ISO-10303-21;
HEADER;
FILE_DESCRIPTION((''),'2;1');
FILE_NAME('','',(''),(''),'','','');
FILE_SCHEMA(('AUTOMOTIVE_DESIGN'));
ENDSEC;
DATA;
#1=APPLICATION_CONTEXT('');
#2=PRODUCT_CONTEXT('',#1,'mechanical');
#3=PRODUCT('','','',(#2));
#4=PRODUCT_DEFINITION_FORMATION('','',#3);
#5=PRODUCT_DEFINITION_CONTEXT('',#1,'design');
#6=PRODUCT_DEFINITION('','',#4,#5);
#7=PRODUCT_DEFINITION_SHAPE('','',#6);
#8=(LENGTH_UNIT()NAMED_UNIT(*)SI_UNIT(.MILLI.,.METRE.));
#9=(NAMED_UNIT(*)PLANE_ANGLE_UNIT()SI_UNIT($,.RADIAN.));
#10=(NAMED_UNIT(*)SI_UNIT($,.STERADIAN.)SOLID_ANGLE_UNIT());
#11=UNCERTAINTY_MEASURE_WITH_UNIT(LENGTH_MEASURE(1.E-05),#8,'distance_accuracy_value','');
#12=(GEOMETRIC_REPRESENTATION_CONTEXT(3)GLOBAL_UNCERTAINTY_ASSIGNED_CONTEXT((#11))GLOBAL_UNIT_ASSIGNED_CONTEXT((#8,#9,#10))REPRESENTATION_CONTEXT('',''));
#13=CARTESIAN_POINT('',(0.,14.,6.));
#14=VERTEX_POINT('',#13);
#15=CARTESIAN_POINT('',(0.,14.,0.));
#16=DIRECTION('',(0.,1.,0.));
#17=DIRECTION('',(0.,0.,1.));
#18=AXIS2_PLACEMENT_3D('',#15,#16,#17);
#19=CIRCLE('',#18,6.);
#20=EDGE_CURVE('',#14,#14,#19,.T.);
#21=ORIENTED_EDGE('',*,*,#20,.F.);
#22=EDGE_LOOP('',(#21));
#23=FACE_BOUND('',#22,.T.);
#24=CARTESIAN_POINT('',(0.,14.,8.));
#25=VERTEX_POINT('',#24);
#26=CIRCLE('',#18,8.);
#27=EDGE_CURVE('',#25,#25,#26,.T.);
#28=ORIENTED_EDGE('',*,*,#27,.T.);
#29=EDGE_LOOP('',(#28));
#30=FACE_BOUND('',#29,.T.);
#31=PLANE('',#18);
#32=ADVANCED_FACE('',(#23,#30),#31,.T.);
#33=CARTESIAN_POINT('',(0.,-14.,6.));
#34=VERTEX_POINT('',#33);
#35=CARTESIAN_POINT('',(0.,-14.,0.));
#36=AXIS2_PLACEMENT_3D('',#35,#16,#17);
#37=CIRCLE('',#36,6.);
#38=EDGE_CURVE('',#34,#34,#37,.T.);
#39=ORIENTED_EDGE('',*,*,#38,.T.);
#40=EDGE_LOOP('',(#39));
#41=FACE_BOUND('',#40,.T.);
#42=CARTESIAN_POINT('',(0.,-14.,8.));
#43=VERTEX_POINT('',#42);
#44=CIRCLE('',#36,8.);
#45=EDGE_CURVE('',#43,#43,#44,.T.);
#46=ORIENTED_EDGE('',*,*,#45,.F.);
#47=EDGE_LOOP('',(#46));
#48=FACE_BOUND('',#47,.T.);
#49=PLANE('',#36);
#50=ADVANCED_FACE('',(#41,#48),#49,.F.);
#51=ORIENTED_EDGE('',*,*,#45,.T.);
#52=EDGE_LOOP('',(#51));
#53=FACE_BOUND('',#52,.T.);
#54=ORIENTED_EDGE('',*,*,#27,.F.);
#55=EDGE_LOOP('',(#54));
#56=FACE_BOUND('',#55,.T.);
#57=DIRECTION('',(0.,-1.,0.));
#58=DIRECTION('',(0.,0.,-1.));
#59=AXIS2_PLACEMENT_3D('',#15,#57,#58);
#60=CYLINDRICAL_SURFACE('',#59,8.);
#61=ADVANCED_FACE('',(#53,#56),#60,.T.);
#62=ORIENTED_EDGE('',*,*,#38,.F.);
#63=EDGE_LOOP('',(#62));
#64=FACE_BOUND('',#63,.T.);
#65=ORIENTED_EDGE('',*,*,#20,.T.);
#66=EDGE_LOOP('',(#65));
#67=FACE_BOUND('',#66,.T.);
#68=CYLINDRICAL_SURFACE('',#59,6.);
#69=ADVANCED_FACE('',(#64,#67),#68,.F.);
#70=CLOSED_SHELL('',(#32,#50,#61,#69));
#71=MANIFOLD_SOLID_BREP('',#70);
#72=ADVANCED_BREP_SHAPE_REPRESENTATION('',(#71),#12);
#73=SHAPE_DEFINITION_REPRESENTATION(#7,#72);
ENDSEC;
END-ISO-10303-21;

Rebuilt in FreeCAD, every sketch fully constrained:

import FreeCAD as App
import Part
import Sketcher

doc = App.newDocument("Part")
body = doc.addObject("PartDesign::Body", "Body")

# Sketch on XZ plane
sketch1 = doc.addObject("Sketcher::SketchObject", "Sketch")
body.addObject(sketch1)
sketch1.AttachmentSupport = (doc.XZ_Plane, [""])
sketch1.MapMode = "FlatFace"
sketch1.addGeometry([
    Part.Circle(App.Vector(0, 0, 0), App.Vector(0, 0, 1), 8),
    Part.Circle(App.Vector(0, 0, 0), App.Vector(0, 0, 1), 6),
], False)
sketch1.addConstraint([
    Sketcher.Constraint("Coincident", 0, 3, -1, 1),
    Sketcher.Constraint("Coincident", 1, 3, -1, 1),
    Sketcher.Constraint("Diameter", 0, 16.0),
    Sketcher.Constraint("Diameter", 1, 12.0),
])
pad1 = doc.addObject("PartDesign::Pad", "Pad")
body.addObject(pad1)
pad1.Profile = sketch1
pad1.Length = 28
pad1.Midplane = True

doc.recompute()
